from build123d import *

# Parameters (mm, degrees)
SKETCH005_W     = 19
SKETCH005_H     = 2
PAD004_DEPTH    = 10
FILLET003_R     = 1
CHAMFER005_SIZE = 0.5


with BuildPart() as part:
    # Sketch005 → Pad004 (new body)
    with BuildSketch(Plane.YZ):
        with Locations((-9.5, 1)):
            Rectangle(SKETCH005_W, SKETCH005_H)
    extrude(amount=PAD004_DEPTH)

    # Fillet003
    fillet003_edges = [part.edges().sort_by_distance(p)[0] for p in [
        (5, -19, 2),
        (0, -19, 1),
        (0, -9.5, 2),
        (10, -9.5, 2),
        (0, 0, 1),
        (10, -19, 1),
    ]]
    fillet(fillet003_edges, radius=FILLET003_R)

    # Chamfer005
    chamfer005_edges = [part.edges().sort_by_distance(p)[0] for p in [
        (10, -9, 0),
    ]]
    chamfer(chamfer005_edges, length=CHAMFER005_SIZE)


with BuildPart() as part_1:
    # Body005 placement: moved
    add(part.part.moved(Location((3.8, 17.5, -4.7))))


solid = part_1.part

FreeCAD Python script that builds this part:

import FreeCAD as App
import Part
import Sketcher
from FreeCAD import Vector
Q = App.Units.Quantity


def edges_at(feature, points):
    """Names of the edges that pass closest to the given points."""
    edges = feature.Shape.Edges
    near = lambda p: min(range(len(edges)), key=lambda i: edges[i].distToShape(Part.Vertex(*p))[0])
    return sorted({f"Edge{near(p) + 1}" for p in points})


def add_polygon(sketch, points):
    """Adds a closed chain of lines whose ends are joined by coincident constraints."""
    first, n = sketch.GeometryCount, len(points)
    for a, b in zip(points, points[1:] + points[:1]):
        sketch.addGeometry(Part.LineSegment(App.Vector(*a, 0), App.Vector(*b, 0)), False)
    for i in range(n):
        sketch.addConstraint(Sketcher.Constraint("Coincident", first + i, 2, first + (i + 1) % n, 1))

doc = App.newDocument("Part")
body = doc.addObject("PartDesign::Body", "Body")

sketch1 = body.newObject("Sketcher::SketchObject", "Sketch")
sketch1.AttachmentSupport = (doc.getObject("YZ_Plane"), [""])
sketch1.MapMode = "FlatFace"
add_polygon(sketch1, [(-19, 2), (-19, 0), (0, 0), (0, 2)])
sketch1.addConstraint(Sketcher.Constraint("Vertical", 0))
sketch1.addConstraint(Sketcher.Constraint("Horizontal", 1))
sketch1.addConstraint(Sketcher.Constraint("Vertical", 2))
sketch1.addConstraint(Sketcher.Constraint("Horizontal", 3))
sketch1.addConstraint(Sketcher.Constraint("Coincident", 1, 2, -1, 1))
sketch1.addConstraint(Sketcher.Constraint("DistanceX", 1, 1, 1, 2, Q("19 mm")))
sketch1.addConstraint(Sketcher.Constraint("DistanceY", 0, 2, 0, 1, Q("2 mm")))
pad1 = body.newObject("PartDesign::Pad", "Pad")
pad1.Profile = sketch1
pad1.Length = 10
doc.recompute()

fillet = body.newObject("PartDesign::Fillet", "Fillet")
fillet.Base = (pad1, edges_at(pad1, [
    (5, -19, 2),
    (0, -19, 1),
    (0, -9.5, 2),
    (10, -9.5, 2),
    (0, 0, 1),
    (10, -19, 1),
]))
fillet.Radius = 1
doc.recompute()

chamfer = body.newObject("PartDesign::Chamfer", "Chamfer")
chamfer.Base = (fillet, edges_at(fillet, [(10, -9, 0)]))
chamfer.Size = 0.5
body2 = doc.addObject("PartDesign::Body", "Body001")
doc.recompute()

body.Placement = App.Placement(Vector(3.8, 17.5, -4.7), App.Rotation(Vector(0, 0, 1), 0))
boolean = body2.newObject("PartDesign::Boolean", "Boolean")
boolean.Type = "Fuse"
boolean.addObjects([body])

doc.recompute()
